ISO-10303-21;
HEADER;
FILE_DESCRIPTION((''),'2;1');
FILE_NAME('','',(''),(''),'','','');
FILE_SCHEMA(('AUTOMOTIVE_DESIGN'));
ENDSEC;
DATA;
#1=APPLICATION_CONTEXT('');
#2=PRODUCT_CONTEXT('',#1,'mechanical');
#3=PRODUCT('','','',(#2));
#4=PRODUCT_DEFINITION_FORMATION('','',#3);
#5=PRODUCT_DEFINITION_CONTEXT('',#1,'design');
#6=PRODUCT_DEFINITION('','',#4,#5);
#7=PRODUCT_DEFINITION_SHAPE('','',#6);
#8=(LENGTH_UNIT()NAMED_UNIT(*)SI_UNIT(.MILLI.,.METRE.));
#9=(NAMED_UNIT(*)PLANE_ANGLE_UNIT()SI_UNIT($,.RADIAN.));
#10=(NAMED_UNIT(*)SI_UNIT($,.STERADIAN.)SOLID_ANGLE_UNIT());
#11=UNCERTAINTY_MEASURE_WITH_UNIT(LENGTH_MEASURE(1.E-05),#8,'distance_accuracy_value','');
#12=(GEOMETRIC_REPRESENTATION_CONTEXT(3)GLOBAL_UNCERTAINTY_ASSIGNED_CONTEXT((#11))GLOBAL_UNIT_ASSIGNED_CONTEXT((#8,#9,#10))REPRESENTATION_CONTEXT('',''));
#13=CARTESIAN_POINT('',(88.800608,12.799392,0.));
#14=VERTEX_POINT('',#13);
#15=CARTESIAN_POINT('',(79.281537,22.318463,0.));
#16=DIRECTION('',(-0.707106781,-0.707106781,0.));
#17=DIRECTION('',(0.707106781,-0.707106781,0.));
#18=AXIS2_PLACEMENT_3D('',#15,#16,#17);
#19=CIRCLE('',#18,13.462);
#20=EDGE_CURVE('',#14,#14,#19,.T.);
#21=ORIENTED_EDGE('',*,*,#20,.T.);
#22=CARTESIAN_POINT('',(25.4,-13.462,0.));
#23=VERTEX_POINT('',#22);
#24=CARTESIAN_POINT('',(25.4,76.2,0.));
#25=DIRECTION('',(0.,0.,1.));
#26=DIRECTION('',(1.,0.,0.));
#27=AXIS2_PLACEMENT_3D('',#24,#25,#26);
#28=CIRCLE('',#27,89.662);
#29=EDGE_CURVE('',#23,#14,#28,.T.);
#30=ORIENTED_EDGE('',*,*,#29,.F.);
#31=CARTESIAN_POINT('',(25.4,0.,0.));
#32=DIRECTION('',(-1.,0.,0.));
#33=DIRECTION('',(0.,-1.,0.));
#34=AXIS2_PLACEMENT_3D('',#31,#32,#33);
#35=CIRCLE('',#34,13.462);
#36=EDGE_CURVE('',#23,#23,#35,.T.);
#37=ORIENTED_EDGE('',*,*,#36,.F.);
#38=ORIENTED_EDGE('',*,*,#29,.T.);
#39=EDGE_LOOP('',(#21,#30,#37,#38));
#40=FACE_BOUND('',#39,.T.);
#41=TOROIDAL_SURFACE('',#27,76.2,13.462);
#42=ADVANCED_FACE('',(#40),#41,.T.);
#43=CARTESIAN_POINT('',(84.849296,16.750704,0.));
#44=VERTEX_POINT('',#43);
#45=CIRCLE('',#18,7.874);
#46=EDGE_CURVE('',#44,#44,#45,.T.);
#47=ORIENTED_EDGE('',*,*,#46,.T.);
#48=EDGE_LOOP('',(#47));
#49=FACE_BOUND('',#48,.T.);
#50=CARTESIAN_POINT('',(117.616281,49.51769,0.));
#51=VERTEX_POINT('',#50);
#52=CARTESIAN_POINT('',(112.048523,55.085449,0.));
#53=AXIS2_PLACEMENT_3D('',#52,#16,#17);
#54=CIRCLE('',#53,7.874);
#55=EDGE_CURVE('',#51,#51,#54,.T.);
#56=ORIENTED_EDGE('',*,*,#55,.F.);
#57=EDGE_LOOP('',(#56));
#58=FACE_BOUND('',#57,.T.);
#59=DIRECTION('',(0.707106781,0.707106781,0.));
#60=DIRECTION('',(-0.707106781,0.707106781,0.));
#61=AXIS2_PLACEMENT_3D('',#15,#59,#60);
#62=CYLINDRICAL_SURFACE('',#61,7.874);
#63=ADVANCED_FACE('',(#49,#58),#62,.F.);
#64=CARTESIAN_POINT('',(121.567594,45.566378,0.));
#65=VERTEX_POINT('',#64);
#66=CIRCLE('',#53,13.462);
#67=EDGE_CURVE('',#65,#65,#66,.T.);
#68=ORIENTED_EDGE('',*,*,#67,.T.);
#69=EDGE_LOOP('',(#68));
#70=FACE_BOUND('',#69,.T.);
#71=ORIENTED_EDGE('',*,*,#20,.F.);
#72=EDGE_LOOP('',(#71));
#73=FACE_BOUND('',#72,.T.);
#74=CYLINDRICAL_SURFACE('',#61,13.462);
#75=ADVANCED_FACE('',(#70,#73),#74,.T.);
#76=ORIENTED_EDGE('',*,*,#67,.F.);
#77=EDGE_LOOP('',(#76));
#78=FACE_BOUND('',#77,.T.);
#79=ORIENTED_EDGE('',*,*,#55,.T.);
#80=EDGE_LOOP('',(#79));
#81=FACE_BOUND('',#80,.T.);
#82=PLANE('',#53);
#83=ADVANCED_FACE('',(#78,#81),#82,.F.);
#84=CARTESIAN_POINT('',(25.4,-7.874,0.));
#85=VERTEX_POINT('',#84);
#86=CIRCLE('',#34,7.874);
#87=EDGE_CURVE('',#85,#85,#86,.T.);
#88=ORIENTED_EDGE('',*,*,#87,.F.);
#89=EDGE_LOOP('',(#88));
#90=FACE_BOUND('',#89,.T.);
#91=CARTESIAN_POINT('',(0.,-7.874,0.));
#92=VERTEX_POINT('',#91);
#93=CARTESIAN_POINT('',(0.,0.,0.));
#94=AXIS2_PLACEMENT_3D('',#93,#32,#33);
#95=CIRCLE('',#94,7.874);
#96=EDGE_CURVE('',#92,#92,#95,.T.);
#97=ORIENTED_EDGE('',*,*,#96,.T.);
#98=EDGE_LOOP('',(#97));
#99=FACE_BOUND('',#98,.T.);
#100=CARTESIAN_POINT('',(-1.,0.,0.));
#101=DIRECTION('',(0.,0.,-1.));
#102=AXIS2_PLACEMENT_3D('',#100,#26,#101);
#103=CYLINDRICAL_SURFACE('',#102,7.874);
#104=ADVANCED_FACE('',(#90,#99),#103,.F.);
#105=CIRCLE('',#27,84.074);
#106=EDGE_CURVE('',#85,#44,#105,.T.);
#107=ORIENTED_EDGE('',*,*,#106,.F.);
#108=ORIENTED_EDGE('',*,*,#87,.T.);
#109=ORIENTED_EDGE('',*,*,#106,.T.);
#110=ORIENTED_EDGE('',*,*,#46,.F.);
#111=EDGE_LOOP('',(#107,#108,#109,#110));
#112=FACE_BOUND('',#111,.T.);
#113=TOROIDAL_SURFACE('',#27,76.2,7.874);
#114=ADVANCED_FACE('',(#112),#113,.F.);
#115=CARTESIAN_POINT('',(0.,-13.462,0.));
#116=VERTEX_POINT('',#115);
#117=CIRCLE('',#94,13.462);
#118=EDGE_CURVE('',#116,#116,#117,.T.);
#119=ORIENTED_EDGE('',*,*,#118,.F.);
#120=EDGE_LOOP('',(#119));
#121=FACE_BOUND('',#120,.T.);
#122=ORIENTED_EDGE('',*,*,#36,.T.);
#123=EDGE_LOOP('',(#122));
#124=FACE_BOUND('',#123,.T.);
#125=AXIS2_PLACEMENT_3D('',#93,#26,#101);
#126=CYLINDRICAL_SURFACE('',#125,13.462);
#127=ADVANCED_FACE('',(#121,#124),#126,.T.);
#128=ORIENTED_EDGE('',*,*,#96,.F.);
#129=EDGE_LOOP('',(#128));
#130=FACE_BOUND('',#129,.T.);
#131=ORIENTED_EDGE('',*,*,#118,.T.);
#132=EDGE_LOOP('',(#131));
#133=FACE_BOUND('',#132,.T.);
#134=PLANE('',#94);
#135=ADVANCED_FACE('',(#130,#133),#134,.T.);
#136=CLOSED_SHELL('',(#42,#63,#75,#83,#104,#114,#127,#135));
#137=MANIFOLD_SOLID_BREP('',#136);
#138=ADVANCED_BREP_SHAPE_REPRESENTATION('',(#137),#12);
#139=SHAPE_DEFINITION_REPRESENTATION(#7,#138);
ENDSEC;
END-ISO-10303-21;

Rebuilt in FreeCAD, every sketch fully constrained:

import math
import FreeCAD as App
import Part
import Sketcher
Q = App.Units.Quantity

doc = App.newDocument("Part")
body = doc.addObject("PartDesign::Body", "Body")

sketch1 = body.newObject("Sketcher::SketchObject", "Sketch")
sketch1.AttachmentSupport = (doc.getObject("YZ_Plane"), [""])
sketch1.MapMode = "FlatFace"
sketch1.addGeometry(Part.Circle(App.Vector(0, 0, 0), App.Vector(0, 0, 1), 13), False)
sketch1.addConstraint(Sketcher.Constraint("Coincident", 0, 3, -1, 1))
sketch1.addConstraint(Sketcher.Constraint("Diameter", 0, Q("1.06 in")))

sketch2 = body.newObject("Sketcher::SketchObject", "Sketch001")
sketch2.AttachmentSupport = (doc.getObject("XY_Plane"), [""])
sketch2.MapMode = "FlatFace"
sketch2.addGeometry(Part.LineSegment(App.Vector(0, 0, 0), App.Vector(25, 0, 0)), False)
sketch2.addGeometry(Part.ArcOfCircle(Part.Circle(App.Vector(25, 76, 0), App.Vector(0, 0, 1), 76), math.radians(-90), math.radians(-45)), False)
sketch2.addGeometry(Part.LineSegment(App.Vector(79, 22, 0), App.Vector(112, 55, 0)), False)
sketch2.addConstraint(Sketcher.Constraint("Tangent", 0, 2, 1, 1))
sketch2.addConstraint(Sketcher.Constraint("Tangent", 1, 2, 2, 1))
sketch2.addConstraint(Sketcher.Constraint("Horizontal", 0))
sketch2.addConstraint(Sketcher.Constraint("Coincident", 0, 1, -1, 1))
sketch2.addConstraint(Sketcher.Constraint("Radius", 1, Q("3 in")))
sketch2.addConstraint(Sketcher.Constraint("DistanceX", 0, 1, 0, 2, Q("1 in")))
sketch2.addConstraint(Sketcher.Constraint("Angle", 2, Q("45 deg")))
sketch2.addConstraint(Sketcher.Constraint("DistanceY", -1, 1, 2, 2, 55.085449))
doc.recompute()

additivepipe = body.newObject("PartDesign::AdditivePipe", "AdditivePipe")
additivepipe.Profile = sketch1
additivepipe.Spine = (sketch2, ["Edge1", "Edge2", "Edge3"])

sketch3 = body.newObject("Sketcher::SketchObject", "Sketch002")
sketch3.AttachmentSupport = (doc.getObject("YZ_Plane"), [""])
sketch3.MapMode = "FlatFace"
sketch3.addGeometry(Part.Circle(App.Vector(0, 0, 0), App.Vector(0, 0, 1), 8), False)
sketch3.addConstraint(Sketcher.Constraint("Coincident", 0, 3, -1, 1))
sketch3.addConstraint(Sketcher.Constraint("Diameter", 0, Q("0.62 in")))

sketch4 = body.newObject("Sketcher::SketchObject", "Sketch003")
sketch4.AttachmentSupport = (doc.getObject("XY_Plane"), [""])
sketch4.MapMode = "FlatFace"
sketch4.addGeometry(Part.LineSegment(App.Vector(0, 0, 0), App.Vector(25, 0, 0)), False)
sketch4.addGeometry(Part.ArcOfCircle(Part.Circle(App.Vector(25, 76, 0), App.Vector(0, 0, 1), 76), math.radians(-90), math.radians(-45)), False)
sketch4.addGeometry(Part.LineSegment(App.Vector(79, 22, 0), App.Vector(112, 55, 0)), False)
sketch4.addConstraint(Sketcher.Constraint("Tangent", 0, 2, 1, 1))
sketch4.addConstraint(Sketcher.Constraint("Tangent", 1, 2, 2, 1))
sketch4.addConstraint(Sketcher.Constraint("Horizontal", 0))
sketch4.addConstraint(Sketcher.Constraint("Coincident", 0, 1, -1, 1))
sketch4.addConstraint(Sketcher.Constraint("Radius", 1, Q("3 in")))
sketch4.addConstraint(Sketcher.Constraint("DistanceX", 0, 1, 0, 2, Q("1 in")))
sketch4.addConstraint(Sketcher.Constraint("Angle", 2, Q("45 deg")))
sketch4.addConstraint(Sketcher.Constraint("DistanceY", -1, 1, 2, 2, 55.085449))
doc.recompute()

subtractivepipe = body.newObject("PartDesign::SubtractivePipe", "SubtractivePipe")
subtractivepipe.Profile = sketch3
subtractivepipe.Spine = (sketch4, ["Edge1", "Edge2", "Edge3"])

doc.recompute()
